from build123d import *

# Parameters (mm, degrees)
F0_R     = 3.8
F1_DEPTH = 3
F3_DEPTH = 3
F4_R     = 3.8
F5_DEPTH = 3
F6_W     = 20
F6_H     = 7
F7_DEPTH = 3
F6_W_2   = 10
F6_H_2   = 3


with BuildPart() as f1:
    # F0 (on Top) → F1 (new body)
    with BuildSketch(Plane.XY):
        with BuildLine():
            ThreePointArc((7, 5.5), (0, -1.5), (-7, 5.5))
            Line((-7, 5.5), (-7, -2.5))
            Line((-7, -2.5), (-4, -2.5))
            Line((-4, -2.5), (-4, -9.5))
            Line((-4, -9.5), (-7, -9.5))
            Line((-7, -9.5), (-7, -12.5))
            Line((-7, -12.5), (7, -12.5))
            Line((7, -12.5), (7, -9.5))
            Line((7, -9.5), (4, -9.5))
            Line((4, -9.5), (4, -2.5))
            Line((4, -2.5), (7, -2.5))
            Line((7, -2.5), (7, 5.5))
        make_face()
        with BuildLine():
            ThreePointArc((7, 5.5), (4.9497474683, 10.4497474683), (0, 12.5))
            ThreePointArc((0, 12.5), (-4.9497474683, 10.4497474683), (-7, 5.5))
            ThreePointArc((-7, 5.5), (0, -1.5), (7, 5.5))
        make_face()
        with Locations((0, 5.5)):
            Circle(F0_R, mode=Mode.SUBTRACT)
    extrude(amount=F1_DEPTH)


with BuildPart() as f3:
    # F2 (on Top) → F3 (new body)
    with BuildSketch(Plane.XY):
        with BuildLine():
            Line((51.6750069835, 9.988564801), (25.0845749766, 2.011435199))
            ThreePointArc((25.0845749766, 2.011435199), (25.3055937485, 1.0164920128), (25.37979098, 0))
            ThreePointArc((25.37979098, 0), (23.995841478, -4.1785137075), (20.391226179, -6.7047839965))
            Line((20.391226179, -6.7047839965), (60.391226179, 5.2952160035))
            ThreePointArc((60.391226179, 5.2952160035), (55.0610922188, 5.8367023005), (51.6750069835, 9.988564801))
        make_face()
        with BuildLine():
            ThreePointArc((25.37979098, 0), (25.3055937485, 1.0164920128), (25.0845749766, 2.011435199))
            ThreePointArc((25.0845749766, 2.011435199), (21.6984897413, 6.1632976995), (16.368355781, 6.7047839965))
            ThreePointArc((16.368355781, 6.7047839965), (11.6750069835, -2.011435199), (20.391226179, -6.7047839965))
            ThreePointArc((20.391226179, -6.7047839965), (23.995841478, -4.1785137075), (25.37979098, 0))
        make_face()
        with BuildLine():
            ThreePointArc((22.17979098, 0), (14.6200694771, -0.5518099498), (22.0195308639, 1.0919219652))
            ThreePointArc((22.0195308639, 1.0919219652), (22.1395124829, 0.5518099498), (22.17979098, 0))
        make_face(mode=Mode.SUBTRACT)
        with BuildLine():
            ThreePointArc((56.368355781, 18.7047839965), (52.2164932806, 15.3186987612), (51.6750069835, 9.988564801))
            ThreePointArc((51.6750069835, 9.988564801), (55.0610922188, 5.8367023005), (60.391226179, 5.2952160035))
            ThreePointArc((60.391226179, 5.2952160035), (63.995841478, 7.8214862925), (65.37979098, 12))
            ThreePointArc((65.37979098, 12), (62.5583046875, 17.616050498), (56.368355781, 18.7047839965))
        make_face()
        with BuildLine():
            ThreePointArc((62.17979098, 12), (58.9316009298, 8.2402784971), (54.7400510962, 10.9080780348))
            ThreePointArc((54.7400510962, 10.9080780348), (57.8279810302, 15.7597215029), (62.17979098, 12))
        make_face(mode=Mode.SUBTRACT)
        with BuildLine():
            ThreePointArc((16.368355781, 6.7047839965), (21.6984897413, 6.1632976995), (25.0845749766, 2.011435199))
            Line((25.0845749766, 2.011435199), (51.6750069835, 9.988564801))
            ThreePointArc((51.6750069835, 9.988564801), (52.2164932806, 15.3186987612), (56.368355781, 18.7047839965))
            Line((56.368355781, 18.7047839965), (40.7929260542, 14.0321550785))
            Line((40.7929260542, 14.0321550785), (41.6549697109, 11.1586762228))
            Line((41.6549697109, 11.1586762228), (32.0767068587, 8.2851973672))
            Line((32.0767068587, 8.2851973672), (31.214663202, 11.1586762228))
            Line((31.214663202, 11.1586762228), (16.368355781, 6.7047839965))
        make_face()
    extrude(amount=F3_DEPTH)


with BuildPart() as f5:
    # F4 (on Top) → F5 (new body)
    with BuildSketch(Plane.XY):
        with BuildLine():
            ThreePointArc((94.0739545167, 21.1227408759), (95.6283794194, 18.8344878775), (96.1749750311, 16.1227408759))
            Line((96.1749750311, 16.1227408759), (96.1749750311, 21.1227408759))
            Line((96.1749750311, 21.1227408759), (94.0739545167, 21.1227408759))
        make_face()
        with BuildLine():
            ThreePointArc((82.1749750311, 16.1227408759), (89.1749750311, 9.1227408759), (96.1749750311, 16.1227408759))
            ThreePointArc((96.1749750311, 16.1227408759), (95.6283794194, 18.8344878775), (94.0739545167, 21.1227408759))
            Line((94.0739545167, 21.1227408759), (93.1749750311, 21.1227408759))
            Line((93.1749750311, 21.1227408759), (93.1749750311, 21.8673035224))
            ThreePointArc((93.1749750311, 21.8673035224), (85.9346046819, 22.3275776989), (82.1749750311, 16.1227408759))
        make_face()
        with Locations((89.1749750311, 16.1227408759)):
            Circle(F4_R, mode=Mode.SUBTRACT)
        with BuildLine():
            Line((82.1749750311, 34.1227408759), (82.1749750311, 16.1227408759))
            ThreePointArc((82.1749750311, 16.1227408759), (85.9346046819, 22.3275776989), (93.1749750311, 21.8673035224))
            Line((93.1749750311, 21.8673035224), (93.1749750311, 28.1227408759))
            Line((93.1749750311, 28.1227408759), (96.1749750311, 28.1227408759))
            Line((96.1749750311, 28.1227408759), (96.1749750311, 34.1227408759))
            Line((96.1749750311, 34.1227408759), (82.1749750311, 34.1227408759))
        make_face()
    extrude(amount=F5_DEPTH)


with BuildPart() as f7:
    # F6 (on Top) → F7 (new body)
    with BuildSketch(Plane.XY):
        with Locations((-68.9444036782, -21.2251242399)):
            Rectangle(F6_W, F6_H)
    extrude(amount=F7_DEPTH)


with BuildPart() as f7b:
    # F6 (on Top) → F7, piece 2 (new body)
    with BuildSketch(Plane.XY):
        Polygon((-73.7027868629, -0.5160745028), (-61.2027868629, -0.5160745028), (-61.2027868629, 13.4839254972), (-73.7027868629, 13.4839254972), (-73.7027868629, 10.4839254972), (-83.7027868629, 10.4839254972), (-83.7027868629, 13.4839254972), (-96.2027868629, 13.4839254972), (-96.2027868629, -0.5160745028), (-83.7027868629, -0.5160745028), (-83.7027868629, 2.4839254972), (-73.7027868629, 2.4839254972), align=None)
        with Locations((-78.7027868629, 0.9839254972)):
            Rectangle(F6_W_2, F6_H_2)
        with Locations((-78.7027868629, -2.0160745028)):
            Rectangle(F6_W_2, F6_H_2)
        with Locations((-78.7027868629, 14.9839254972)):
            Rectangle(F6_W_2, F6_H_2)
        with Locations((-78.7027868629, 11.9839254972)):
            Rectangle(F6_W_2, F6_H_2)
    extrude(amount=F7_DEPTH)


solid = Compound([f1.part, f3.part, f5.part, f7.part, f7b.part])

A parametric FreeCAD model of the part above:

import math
import FreeCAD as App
import Part
import Sketcher

V = App.Vector
Q = App.Units.Quantity

doc = App.newDocument("Part")
body = doc.addObject("PartDesign::Body", "Body")

# Sketch on XY plane
sketch1 = body.newObject("Sketcher::SketchObject", "Sketch")
sketch1.AttachmentSupport = (doc.getObject("XY_Plane"), [""])
sketch1.MapMode = "FlatFace"
sketch1.addGeometry([
    Part.LineSegment(V(-7, 5.5, 0), V(-7, -2.5, 0)),  # 0
    Part.LineSegment(V(-7, -2.5, 0), V(-4, -2.5, 0)),  # 1
    Part.LineSegment(V(-4, -2.5, 0), V(-4, -9.5, 0)),  # 2
    Part.LineSegment(V(-4, -9.5, 0), V(-7, -9.5, 0)),  # 3
    Part.LineSegment(V(-7, -9.5, 0), V(-7, -12.5, 0)),  # 4
    Part.LineSegment(V(-7, -12.5, 0), V(7, -12.5, 0)),  # 5
    Part.LineSegment(V(7, -12.5, 0), V(7, -9.5, 0)),  # 6
    Part.LineSegment(V(7, -9.5, 0), V(4, -9.5, 0)),  # 7
    Part.LineSegment(V(4, -9.5, 0), V(4, -2.5, 0)),  # 8
    Part.LineSegment(V(4, -2.5, 0), V(7, -2.5, 0)),  # 9
    Part.LineSegment(V(7, -2.5, 0), V(7, 5.5, 0)),  # 10
    Part.ArcOfCircle(Part.Circle(V(0, 5.5, 0), V(0, 0, 1), 7), math.radians(0), math.radians(90)),  # 11
    Part.ArcOfCircle(Part.Circle(V(0, 5.5, 0), V(0, 0, 1), 7), math.radians(90), math.radians(180)),  # 12
    Part.Circle(V(0, 5.5, 0), V(0, 0, 1), 3.8),  # 13
], False)
sketch1.addConstraint([
    Sketcher.Constraint("Coincident", 0, 2, 1, 1),
    Sketcher.Constraint("Coincident", 1, 2, 2, 1),
    Sketcher.Constraint("Coincident", 2, 2, 3, 1),
    Sketcher.Constraint("Coincident", 3, 2, 4, 1),
    Sketcher.Constraint("Coincident", 4, 2, 5, 1),
    Sketcher.Constraint("Coincident", 5, 2, 6, 1),
    Sketcher.Constraint("Coincident", 6, 2, 7, 1),
    Sketcher.Constraint("Coincident", 7, 2, 8, 1),
    Sketcher.Constraint("Coincident", 8, 2, 9, 1),
    Sketcher.Constraint("Coincident", 9, 2, 10, 1),
    Sketcher.Constraint("Tangent", 10, 2, 11, 1),
    Sketcher.Constraint("Tangent", 11, 2, 12, 1),
    Sketcher.Constraint("Tangent", 12, 2, 0, 1),
    Sketcher.Constraint("Vertical", 0),
    Sketcher.Constraint("Horizontal", 1),
    Sketcher.Constraint("Vertical", 2),
    Sketcher.Constraint("Horizontal", 3),
    Sketcher.Constraint("Vertical", 4),
    Sketcher.Constraint("Horizontal", 5),
    Sketcher.Constraint("Vertical", 6),
    Sketcher.Constraint("Horizontal", 7),
    Sketcher.Constraint("Vertical", 8),
    Sketcher.Constraint("Horizontal", 9),
    Sketcher.Constraint("Vertical", 10),
    Sketcher.Constraint("Coincident", 13, 3, 11, 3),
    Sketcher.Constraint("Equal", 11, 12),
    Sketcher.Constraint("Symmetric", 3, 2, 6, 2, -2),
    Sketcher.Constraint("Symmetric", 1, 2, 8, 2, -2),
    Sketcher.Constraint("PointOnObject", 11, 3, -2),
    Sketcher.Constraint("PointOnObject", 11, 2, -2),
    Sketcher.Constraint("Vertical", 0, 2, 3, 2),
    Sketcher.Constraint("Equal", 9, 4),
    Sketcher.Constraint("Radius", 11, Q("7 mm")),
    Sketcher.Constraint("Diameter", 13, Q("7.6 mm")),
    Sketcher.Constraint("DistanceX", 1, 1, 1, 2, Q("3 mm")),
    Sketcher.Constraint("DistanceY", 0, 2, 0, 1, Q("8 mm")),
    Sketcher.Constraint("DistanceY", 2, 2, 2, 1, Q("7 mm")),
    Sketcher.Constraint("DistanceY", -1, 1, 11, 3, Q("5.5 mm")),
])
pad1 = body.newObject("PartDesign::Pad", "Pad")
pad1.Profile = sketch1
pad1.Length = 3
body2 = doc.addObject("PartDesign::Body", "Body001")

# Sketch on XY plane
sketch2 = body2.newObject("Sketcher::SketchObject", "Sketch001")
sketch2.AttachmentSupport = (doc.getObject("XY_Plane001"), [""])
sketch2.MapMode = "FlatFace"
sketch2.addGeometry([
    Part.ArcOfCircle(Part.Circle(V(58.4, 12, 0), V(0, 0, 1), 7), math.radians(-73), math.radians(107)),  # 0
    Part.LineSegment(V(56.4, 18.7, 0), V(40.8, 14, 0)),  # 1
    Part.LineSegment(V(40.8, 14, 0), V(41.7, 11.2, 0)),  # 2
    Part.LineSegment(V(41.7, 11.2, 0), V(32.1, 8.3, 0)),  # 3
    Part.LineSegment(V(32.1, 8.3, 0), V(31.2, 11.2, 0)),  # 4
    Part.LineSegment(V(31.2, 11.2, 0), V(16.4, 6.7, 0)),  # 5
    Part.ArcOfCircle(Part.Circle(V(18.4, 0, 0), V(0, 0, 1), 7), math.radians(107), math.radians(287)),  # 6
    Part.LineSegment(V(20.4, -6.7, 0), V(60.4, 5.3, 0)),  # 7
    Part.ArcOfCircle(Part.Circle(V(18.4, 0, 0), V(0, 0, 1), 3.8), math.radians(0), math.radians(16.7)),  # 8
    Part.ArcOfCircle(Part.Circle(V(18.4, 0, 0), V(0, 0, 1), 3.8), math.radians(17), math.radians(360)),  # 9
    Part.ArcOfCircle(Part.Circle(V(58.4, 12, 0), V(0, 0, 1), 3.8), math.radians(0), math.radians(197)),  # 10
    Part.ArcOfCircle(Part.Circle(V(58.4, 12, 0), V(0, 0, 1), 3.8), math.radians(-163), math.radians(0)),  # 11
], False)
sketch2.addConstraint([
    Sketcher.Constraint("Tangent", 0, 2, 1, 1),
    Sketcher.Constraint("Coincident", 1, 2, 2, 1),
    Sketcher.Constraint("Coincident", 2, 2, 3, 1),
    Sketcher.Constraint("Coincident", 3, 2, 4, 1),
    Sketcher.Constraint("Coincident", 4, 2, 5, 1),
    Sketcher.Constraint("Tangent", 5, 2, 6, 1),
    Sketcher.Constraint("Tangent", 6, 2, 7, 1),
    Sketcher.Constraint("Tangent", 7, 2, 0, 1),
    Sketcher.Constraint("Tangent", 8, 1, 9, 2),
    Sketcher.Constraint("Coincident", 9, 1, 8, 2),
    Sketcher.Constraint("Tangent", 10, 1, 11, 2),
    Sketcher.Constraint("Coincident", 11, 1, 10, 2),
    Sketcher.Constraint("Coincident", 8, 3, 6, 3),
    Sketcher.Constraint("Coincident", 10, 3, 0, 3),
    Sketcher.Constraint("Equal", 0, 6),
    Sketcher.Constraint("Equal", 9, 10),
    Sketcher.Constraint("PointOnObject", 6, 3, -1),
    Sketcher.Constraint("PointOnObject", 8, 1, -1),
    Sketcher.Constraint("Perpendicular", 1, 2),
    Sketcher.Constraint("Perpendicular", 2, 3),
    Sketcher.Constraint("Perpendicular", 3, 4),
    Sketcher.Constraint("Perpendicular", 4, 5),
    Sketcher.Constraint("Parallel", 5, 7),
    Sketcher.Constraint("Horizontal", 2, 2, 4, 2),
    Sketcher.Constraint("Horizontal", 11, 3, 10, 1),
    Sketcher.Constraint("Radius", 0, Q("7 mm")),
    Sketcher.Constraint("Radius", 8, Q("3.8 mm")),
    Sketcher.Constraint("Distance", 2, Q("3 mm")),
    Sketcher.Constraint("Distance", 3, Q("10 mm")),
    Sketcher.Constraint("DistanceY", -1, 1, 0, 3, Q("12 mm")),
    Sketcher.Constraint("Distance", 5, Q("15.5 mm")),
    Sketcher.Constraint("DistanceX", -1, 1, 0, 3, Q("58.379791 mm")),
    Sketcher.Constraint("DistanceX", -1, 1, 9, 1, Q("22.019531 mm")),
    Sketcher.Constraint("DistanceX", -1, 1, 11, 1, Q("54.740051 mm")),
])
pad2 = body2.newObject("PartDesign::Pad", "Pad001")
pad2.Profile = sketch2
pad2.Length = 3
body3 = doc.addObject("PartDesign::Body", "Body002")

# Sketch on XY plane
sketch3 = body3.newObject("Sketcher::SketchObject", "Sketch002")
sketch3.AttachmentSupport = (doc.getObject("XY_Plane002"), [""])
sketch3.MapMode = "FlatFace"
sketch3.addGeometry([
    Part.LineSegment(V(96.2, 16.1, 0), V(96.2, 21.1, 0)),  # 0
    Part.LineSegment(V(96.2, 21.1, 0), V(93.2, 21.1, 0)),  # 1
    Part.LineSegment(V(93.2, 21.1, 0), V(93.2, 28.1, 0)),  # 2
    Part.LineSegment(V(93.2, 28.1, 0), V(96.2, 28.1, 0)),  # 3
    Part.LineSegment(V(96.2, 28.1, 0), V(96.2, 34.1, 0)),  # 4
    Part.LineSegment(V(96.2, 34.1, 0), V(82.2, 34.1, 0)),  # 5
    Part.LineSegment(V(82.2, 34.1, 0), V(82.2, 16.1, 0)),  # 6
    Part.ArcOfCircle(Part.Circle(V(89.2, 16.1, 0), V(0, 0, 1), 7), math.radians(180), math.radians(360)),  # 7
    Part.Circle(V(89.2, 16.1, 0), V(0, 0, 1), 3.8),  # 8
], False)
sketch3.addConstraint([
    Sketcher.Constraint("Coincident", 0, 2, 1, 1),
    Sketcher.Constraint("Coincident", 1, 2, 2, 1),
    Sketcher.Constraint("Coincident", 2, 2, 3, 1),
    Sketcher.Constraint("Coincident", 3, 2, 4, 1),
    Sketcher.Constraint("Coincident", 4, 2, 5, 1),
    Sketcher.Constraint("Coincident", 5, 2, 6, 1),
    Sketcher.Constraint("Tangent", 6, 2, 7, 1),
    Sketcher.Constraint("Tangent", 7, 2, 0, 1),
    Sketcher.Constraint("Vertical", 0),
    Sketcher.Constraint("Horizontal", 1),
    Sketcher.Constraint("Vertical", 2),
    Sketcher.Constraint("Horizontal", 3),
    Sketcher.Constraint("Vertical", 4),
    Sketcher.Constraint("Horizontal", 5),
    Sketcher.Constraint("Vertical", 6),
    Sketcher.Constraint("Coincident", 8, 3, 7, 3),
    Sketcher.Constraint("Vertical", 0, 2, 3, 2),
    Sketcher.Constraint("Radius", 7, Q("7 mm")),
    Sketcher.Constraint("Diameter", 8, Q("7.6 mm")),
    Sketcher.Constraint("DistanceX", 1, 2, 1, 1, Q("3 mm")),
    Sketcher.Constraint("DistanceY", 0, 1, 0, 2, Q("5 mm")),
    Sketcher.Constraint("DistanceY", 2, 1, 2, 2, Q("7 mm")),
    Sketcher.Constraint("DistanceY", 4, 1, 4, 2, Q("6 mm")),
    Sketcher.Constraint("DistanceY", -1, 1, 7, 3, Q("16.122741 mm")),
    Sketcher.Constraint("DistanceX", -1, 1, 7, 3, Q("89.174975 mm")),
])
pad3 = body3.newObject("PartDesign::Pad", "Pad002")
pad3.Profile = sketch3
pad3.Length = 3
body4 = doc.addObject("PartDesign::Body", "Body003")

# Sketch on XY plane
sketch4 = body4.newObject("Sketcher::SketchObject", "Sketch003")
sketch4.AttachmentSupport = (doc.getObject("XY_Plane003"), [""])
sketch4.MapMode = "FlatFace"
sketch4.addGeometry([
    Part.LineSegment(V(-79, -18, 0), V(-79, -25, 0)),
    Part.LineSegment(V(-79, -25, 0), V(-59, -25, 0)),
    Part.LineSegment(V(-59, -25, 0), V(-59, -18, 0)),
    Part.LineSegment(V(-59, -18, 0), V(-79, -18, 0)),
], False)
sketch4.addConstraint([
    Sketcher.Constraint("Coincident", 0, 2, 1, 1),
    Sketcher.Constraint("Coincident", 1, 2, 2, 1),
    Sketcher.Constraint("Coincident", 2, 2, 3, 1),
    Sketcher.Constraint("Coincident", 3, 2, 0, 1),
    Sketcher.Constraint("Vertical", 0),
    Sketcher.Constraint("Horizontal", 1),
    Sketcher.Constraint("Vertical", 2),
    Sketcher.Constraint("Horizontal", 3),
    Sketcher.Constraint("DistanceX", 1, 1, 1, 2, Q("20 mm")),
    Sketcher.Constraint("DistanceY", 0, 2, 0, 1, Q("7 mm")),
    Sketcher.Constraint("DistanceX", 0, 2, -1, 1, Q("78.944404 mm")),
    Sketcher.Constraint("DistanceY", 0, 2, -1, 1, Q("24.725124 mm")),
])
pad4 = body4.newObject("PartDesign::Pad", "Pad003")
pad4.Profile = sketch4
pad4.Length = 3
body5 = doc.addObject("PartDesign::Body", "Body004")

# Sketch on XY plane
sketch5 = body5.newObject("Sketcher::SketchObject", "Sketch004")
sketch5.AttachmentSupport = (doc.getObject("XY_Plane004"), [""])
sketch5.MapMode = "FlatFace"
sketch5.addGeometry([
    Part.LineSegment(V(-61.2, -0.5, 0), V(-61.2, 13.5, 0)),  # 0
    Part.LineSegment(V(-61.2, 13.5, 0), V(-73.7, 13.5, 0)),  # 1
    Part.LineSegment(V(-73.7, 13.5, 0), V(-73.7, 16.5, 0)),  # 2
    Part.LineSegment(V(-73.7, 16.5, 0), V(-83.7, 16.5, 0)),  # 3
    Part.LineSegment(V(-83.7, 16.5, 0), V(-83.7, 13.5, 0)),  # 4
    Part.LineSegment(V(-83.7, 13.5, 0), V(-96.2, 13.5, 0)),  # 5
    Part.LineSegment(V(-96.2, 13.5, 0), V(-96.2, -0.5, 0)),  # 6
    Part.LineSegment(V(-96.2, -0.5, 0), V(-83.7, -0.5, 0)),  # 7
    Part.LineSegment(V(-83.7, -0.5, 0), V(-83.7, -3.5, 0)),  # 8
    Part.LineSegment(V(-83.7, -3.5, 0), V(-73.7, -3.5, 0)),  # 9
    Part.LineSegment(V(-73.7, -3.5, 0), V(-73.7, -0.5, 0)),  # 10
    Part.LineSegment(V(-73.7, -0.5, 0), V(-61.2, -0.5, 0)),  # 11
], False)
sketch5.addConstraint([
    Sketcher.Constraint("Coincident", 0, 2, 1, 1),
    Sketcher.Constraint("Coincident", 1, 2, 2, 1),
    Sketcher.Constraint("Coincident", 2, 2, 3, 1),
    Sketcher.Constraint("Coincident", 3, 2, 4, 1),
    Sketcher.Constraint("Coincident", 4, 2, 5, 1),
    Sketcher.Constraint("Coincident", 5, 2, 6, 1),
    Sketcher.Constraint("Coincident", 6, 2, 7, 1),
    Sketcher.Constraint("Coincident", 7, 2, 8, 1),
    Sketcher.Constraint("Coincident", 8, 2, 9, 1),
    Sketcher.Constraint("Coincident", 9, 2, 10, 1),
    Sketcher.Constraint("Coincident", 10, 2, 11, 1),
    Sketcher.Constraint("Coincident", 11, 2, 0, 1),
    Sketcher.Constraint("Vertical", 0),
    Sketcher.Constraint("Horizontal", 1),
    Sketcher.Constraint("Vertical", 2),
    Sketcher.Constraint("Horizontal", 3),
    Sketcher.Constraint("Vertical", 4),
    Sketcher.Constraint("Horizontal", 5),
    Sketcher.Constraint("Vertical", 6),
    Sketcher.Constraint("Horizontal", 7),
    Sketcher.Constraint("Vertical", 8),
    Sketcher.Constraint("Horizontal", 9),
    Sketcher.Constraint("Vertical", 10),
    Sketcher.Constraint("Horizontal", 11),
    Sketcher.Constraint("Horizontal", 1, 2, 4, 2),
    Sketcher.Constraint("Horizontal", 7, 2, 10, 2),
    Sketcher.Constraint("Vertical", 4, 2, 7, 2),
    Sketcher.Constraint("Vertical", 2, 2, 9, 2),
    Sketcher.Constraint("Equal", 1, 5),
    Sketcher.Constraint("Equal", 4, 8),
    Sketcher.Constraint("DistanceX", 3, 2, 3, 1, Q("10 mm")),
    Sketcher.Constraint("DistanceY", 0, 1, 0, 2, Q("14 mm")),
    Sketcher.Constraint("DistanceY", 2, 1, 2, 2, Q("3 mm")),
    Sketcher.Constraint("DistanceX", 1, 2, 1, 1, Q("12.5 mm")),
    Sketcher.Constraint("DistanceX", 0, 2, -1, 1, Q("61.202787 mm")),
    Sketcher.Constraint("DistanceY", -1, 1, 0, 2, Q("13.483925 mm")),
])
pad5 = body5.newObject("PartDesign::Pad", "Pad004")
pad5.Profile = sketch5
pad5.Length = 3

doc.recompute()
